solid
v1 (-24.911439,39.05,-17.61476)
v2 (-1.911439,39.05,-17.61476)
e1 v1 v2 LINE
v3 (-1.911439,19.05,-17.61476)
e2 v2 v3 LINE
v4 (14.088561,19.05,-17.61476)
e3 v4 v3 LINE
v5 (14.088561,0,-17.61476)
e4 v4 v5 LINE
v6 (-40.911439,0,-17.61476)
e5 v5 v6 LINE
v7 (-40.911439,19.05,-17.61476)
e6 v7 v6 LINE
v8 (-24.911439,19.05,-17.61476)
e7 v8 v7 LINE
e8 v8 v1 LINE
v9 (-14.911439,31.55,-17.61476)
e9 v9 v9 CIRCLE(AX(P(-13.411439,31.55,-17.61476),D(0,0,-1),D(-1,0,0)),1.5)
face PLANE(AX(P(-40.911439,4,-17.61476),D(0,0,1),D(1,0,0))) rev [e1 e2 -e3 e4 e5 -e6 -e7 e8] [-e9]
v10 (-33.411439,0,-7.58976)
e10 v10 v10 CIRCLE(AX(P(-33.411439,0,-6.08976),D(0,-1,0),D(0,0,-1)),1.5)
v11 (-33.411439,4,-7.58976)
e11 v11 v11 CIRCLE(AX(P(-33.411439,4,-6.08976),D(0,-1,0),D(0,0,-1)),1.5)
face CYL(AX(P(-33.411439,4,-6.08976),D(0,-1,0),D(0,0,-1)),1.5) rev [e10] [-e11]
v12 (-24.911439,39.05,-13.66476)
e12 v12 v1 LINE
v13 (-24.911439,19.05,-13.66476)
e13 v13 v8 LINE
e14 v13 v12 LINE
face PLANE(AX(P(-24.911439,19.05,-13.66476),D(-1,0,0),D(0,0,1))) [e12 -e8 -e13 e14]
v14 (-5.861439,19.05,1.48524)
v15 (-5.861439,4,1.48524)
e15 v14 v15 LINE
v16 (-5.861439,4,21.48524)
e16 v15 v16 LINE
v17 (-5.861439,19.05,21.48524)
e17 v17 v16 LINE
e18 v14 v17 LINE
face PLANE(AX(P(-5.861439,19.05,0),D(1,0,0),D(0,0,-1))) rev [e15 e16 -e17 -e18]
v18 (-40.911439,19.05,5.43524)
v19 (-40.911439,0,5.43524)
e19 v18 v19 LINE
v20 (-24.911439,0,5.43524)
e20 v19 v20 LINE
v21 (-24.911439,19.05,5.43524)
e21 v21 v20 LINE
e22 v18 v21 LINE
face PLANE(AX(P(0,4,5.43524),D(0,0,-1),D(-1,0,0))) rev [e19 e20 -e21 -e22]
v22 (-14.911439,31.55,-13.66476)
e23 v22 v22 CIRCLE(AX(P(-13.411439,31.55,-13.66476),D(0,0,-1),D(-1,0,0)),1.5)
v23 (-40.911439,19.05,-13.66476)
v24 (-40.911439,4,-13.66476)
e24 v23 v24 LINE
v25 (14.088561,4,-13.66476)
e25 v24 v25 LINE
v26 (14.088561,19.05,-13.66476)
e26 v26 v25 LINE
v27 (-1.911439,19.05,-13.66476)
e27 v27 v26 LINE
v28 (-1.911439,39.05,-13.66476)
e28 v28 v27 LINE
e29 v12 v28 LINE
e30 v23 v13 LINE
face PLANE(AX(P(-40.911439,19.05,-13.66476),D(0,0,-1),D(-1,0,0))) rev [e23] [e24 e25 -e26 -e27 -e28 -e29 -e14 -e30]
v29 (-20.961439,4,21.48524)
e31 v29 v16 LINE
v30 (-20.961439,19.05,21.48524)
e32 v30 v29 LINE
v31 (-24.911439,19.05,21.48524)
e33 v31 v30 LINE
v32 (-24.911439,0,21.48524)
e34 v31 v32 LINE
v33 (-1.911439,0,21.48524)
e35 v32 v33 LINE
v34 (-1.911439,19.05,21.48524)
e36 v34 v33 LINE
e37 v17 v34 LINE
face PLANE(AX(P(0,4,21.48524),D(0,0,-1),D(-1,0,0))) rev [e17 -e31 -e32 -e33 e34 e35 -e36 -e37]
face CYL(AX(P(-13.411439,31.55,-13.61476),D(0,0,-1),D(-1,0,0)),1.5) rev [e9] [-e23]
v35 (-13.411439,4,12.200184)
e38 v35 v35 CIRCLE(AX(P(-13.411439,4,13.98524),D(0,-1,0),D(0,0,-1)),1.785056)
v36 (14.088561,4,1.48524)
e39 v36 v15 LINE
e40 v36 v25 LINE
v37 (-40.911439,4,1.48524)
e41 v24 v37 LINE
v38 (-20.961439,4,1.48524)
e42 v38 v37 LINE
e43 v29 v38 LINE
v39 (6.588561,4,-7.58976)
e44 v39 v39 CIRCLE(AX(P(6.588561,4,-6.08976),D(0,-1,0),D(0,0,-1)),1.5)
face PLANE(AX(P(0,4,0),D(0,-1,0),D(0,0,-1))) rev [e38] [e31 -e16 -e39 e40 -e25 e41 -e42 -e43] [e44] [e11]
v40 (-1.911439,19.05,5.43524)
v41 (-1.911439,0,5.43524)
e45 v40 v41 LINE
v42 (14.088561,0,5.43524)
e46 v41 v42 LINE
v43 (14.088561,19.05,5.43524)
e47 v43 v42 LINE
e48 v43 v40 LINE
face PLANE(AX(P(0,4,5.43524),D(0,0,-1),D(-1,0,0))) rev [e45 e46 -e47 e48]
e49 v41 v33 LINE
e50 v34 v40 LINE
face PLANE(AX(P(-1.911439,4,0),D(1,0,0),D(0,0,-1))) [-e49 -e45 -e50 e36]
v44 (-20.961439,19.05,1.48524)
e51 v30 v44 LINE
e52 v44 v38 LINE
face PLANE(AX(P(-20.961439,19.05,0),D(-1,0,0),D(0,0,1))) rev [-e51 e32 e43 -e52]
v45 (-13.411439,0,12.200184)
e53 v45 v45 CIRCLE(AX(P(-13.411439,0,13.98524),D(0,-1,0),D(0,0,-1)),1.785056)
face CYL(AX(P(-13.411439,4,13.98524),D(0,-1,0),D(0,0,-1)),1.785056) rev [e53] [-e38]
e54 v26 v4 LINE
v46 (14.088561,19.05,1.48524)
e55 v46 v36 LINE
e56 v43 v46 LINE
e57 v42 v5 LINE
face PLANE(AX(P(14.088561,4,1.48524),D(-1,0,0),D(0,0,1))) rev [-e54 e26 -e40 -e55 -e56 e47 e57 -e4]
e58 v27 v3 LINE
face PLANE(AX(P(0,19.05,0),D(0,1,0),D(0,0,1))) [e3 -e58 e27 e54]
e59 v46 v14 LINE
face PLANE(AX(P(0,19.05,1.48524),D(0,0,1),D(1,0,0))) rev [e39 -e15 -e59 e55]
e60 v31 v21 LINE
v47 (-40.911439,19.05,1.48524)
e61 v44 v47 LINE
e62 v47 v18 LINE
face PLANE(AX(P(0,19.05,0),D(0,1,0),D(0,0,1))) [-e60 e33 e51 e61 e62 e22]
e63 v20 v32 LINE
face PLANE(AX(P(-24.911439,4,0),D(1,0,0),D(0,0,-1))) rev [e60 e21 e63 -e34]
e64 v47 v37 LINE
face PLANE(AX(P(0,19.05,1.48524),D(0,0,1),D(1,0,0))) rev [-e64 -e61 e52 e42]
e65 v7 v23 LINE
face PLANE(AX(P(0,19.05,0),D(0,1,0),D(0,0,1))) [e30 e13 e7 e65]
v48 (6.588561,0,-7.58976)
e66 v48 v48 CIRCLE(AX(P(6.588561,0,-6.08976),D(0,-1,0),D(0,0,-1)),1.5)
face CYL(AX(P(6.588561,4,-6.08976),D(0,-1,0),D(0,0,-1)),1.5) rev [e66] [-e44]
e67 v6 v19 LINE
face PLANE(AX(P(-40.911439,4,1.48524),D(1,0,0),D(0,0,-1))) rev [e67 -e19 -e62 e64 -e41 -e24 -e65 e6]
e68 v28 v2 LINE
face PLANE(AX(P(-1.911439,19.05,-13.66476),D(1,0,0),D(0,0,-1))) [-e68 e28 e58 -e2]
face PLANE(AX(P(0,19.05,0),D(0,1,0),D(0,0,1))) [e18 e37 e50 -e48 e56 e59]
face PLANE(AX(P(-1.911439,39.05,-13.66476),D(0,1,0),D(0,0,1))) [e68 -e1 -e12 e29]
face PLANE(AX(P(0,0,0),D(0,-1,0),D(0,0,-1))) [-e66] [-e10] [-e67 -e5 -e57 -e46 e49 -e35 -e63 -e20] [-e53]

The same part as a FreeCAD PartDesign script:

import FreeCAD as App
import Part
import Sketcher

V = App.Vector


def add_polygon(sketch, points):
    """Adds a closed chain of lines whose ends are joined by coincident constraints."""
    first, n = sketch.GeometryCount, len(points)
    for a, b in zip(points, points[1:] + points[:1]):
        sketch.addGeometry(Part.LineSegment(App.Vector(*a, 0), App.Vector(*b, 0)), False)
    for i in range(n):
        sketch.addConstraint(Sketcher.Constraint("Coincident", first + i, 2, first + (i + 1) % n, 1))

doc = App.newDocument("Part")
body = doc.addObject("PartDesign::Body", "Body")

sketch1 = doc.addObject("Sketcher::SketchObject", "Sketch")
body.addObject(sketch1)
sketch1.AttachmentSupport = (doc.XZ_Plane, [""])
sketch1.MapMode = "FlatFace"
add_polygon(sketch1, [(-41, -18), (-41, 1), (14, 1), (14, -18)])
sketch1.addConstraint([
    Sketcher.Constraint("Vertical", 0),
    Sketcher.Constraint("Horizontal", 1),
    Sketcher.Constraint("Vertical", 2),
    Sketcher.Constraint("Horizontal", 3),
    Sketcher.Constraint("DistanceX", 1, 1, 1, 2, 55.0),
    Sketcher.Constraint("DistanceY", 0, 1, 0, 2, 19.1),
    Sketcher.Constraint("DistanceX", 0, 2, -1, 1, 40.911439),
    Sketcher.Constraint("DistanceY", -1, 1, 0, 2, 1.48524),
])
pad1 = doc.addObject("PartDesign::Pad", "Pad")
body.addObject(pad1)
pad1.Profile = sketch1
pad1.Length = 4
pad1.Reversed = True

sketch2 = doc.addObject("Sketcher::SketchObject", "Sketch001")
body.addObject(sketch2)
sketch2.AttachmentSupport = (doc.XZ_Plane, [""])
sketch2.MapMode = "FlatFace"
sketch2.AttachmentOffset = App.Placement(V(0, 0, -4), App.Rotation())
add_polygon(sketch2, [(-40.9, -17.6), (-40.9, -13.7), (14.1, -13.7), (14.1, -17.6)])
sketch2.addConstraint([
    Sketcher.Constraint("Vertical", 0),
    Sketcher.Constraint("Horizontal", 1),
    Sketcher.Constraint("Vertical", 2),
    Sketcher.Constraint("Horizontal", 3),
    Sketcher.Constraint("DistanceX", 1, 1, 1, 2, 55.0),
    Sketcher.Constraint("DistanceY", 0, 1, 0, 2, 3.95),
    Sketcher.Constraint("DistanceX", 0, 2, -1, 1, 40.911439),
    Sketcher.Constraint("DistanceY", 0, 2, -1, 1, 13.66476),
])
pad2 = doc.addObject("PartDesign::Pad", "Pad001")
body.addObject(pad2)
pad2.Profile = sketch2
pad2.Length = 15.05
pad2.Reversed = True
body2 = doc.addObject("PartDesign::Body", "Body001")

sketch3 = doc.addObject("Sketcher::SketchObject", "Sketch002")
body2.addObject(sketch3)
sketch3.AttachmentSupport = (doc.getObject("XZ_Plane001"), [""])
sketch3.MapMode = "FlatFace"
add_polygon(sketch3, [(-40.9, 5.4), (-40.9, 1.5), (14.1, 1.5), (14.1, 5.4), (-1.9, 5.4), (-1.9, 21.5), (-24.9, 21.5), (-24.9, 5.4)])
sketch3.addConstraint([
    Sketcher.Constraint("Vertical", 0),
    Sketcher.Constraint("Horizontal", 1),
    Sketcher.Constraint("Vertical", 2),
    Sketcher.Constraint("Horizontal", 3),
    Sketcher.Constraint("Vertical", 4),
    Sketcher.Constraint("Horizontal", 5),
    Sketcher.Constraint("Vertical", 6),
    Sketcher.Constraint("Horizontal", 7),
    Sketcher.Constraint("Horizontal", 3, 2, 6, 2),
    Sketcher.Constraint("Equal", 3, 7),
    Sketcher.Constraint("DistanceX", 1, 1, 1, 2, 55.0),
    Sketcher.Constraint("DistanceX", 3, 2, 3, 1, 16.0),
    Sketcher.Constraint("DistanceY", 1, 2, 4, 2, 20.0),
    Sketcher.Constraint("DistanceY", 0, 2, 0, 1, 3.95),
    Sketcher.Constraint("DistanceX", 0, 2, -1, 1, 40.911439),
    Sketcher.Constraint("DistanceY", -1, 1, 0, 2, 1.48524),
])
pad3 = doc.addObject("PartDesign::Pad", "Pad002")
body2.addObject(pad3)
pad3.Profile = sketch3
pad3.Length = 4
pad3.Reversed = True
doc.recompute()

boolean = doc.addObject("PartDesign::Boolean", "Boolean")
body.addObject(boolean)
boolean.Type = "Fuse"
boolean.addObjects([body2])

sketch4 = doc.addObject("Sketcher::SketchObject", "Sketch003")
body.addObject(sketch4)
sketch4.AttachmentSupport = (doc.XZ_Plane, [""])
sketch4.MapMode = "FlatFace"
sketch4.AttachmentOffset = App.Placement(V(0, 0, -4), App.Rotation())
add_polygon(sketch4, [(-5.9, 21.5), (-1.9, 21.5), (-1.9, 5.4), (14.1, 5.4), (14.1, 1.5), (-5.9, 1.5)])
add_polygon(sketch4, [(-21, 21.5), (-21, 1.5), (-40.9, 1.5), (-40.9, 5.4), (-24.9, 5.4), (-24.9, 21.5)])
sketch4.addConstraint([
    Sketcher.Constraint("Horizontal", 0),
    Sketcher.Constraint("Vertical", 1),
    Sketcher.Constraint("Horizontal", 2),
    Sketcher.Constraint("Vertical", 3),
    Sketcher.Constraint("Horizontal", 4),
    Sketcher.Constraint("Vertical", 5),
    Sketcher.Constraint("Vertical", 6),
    Sketcher.Constraint("Horizontal", 7),
    Sketcher.Constraint("Vertical", 8),
    Sketcher.Constraint("Horizontal", 9),
    Sketcher.Constraint("Vertical", 10),
    Sketcher.Constraint("Horizontal", 11),
    Sketcher.Constraint("Horizontal", 4, 2, 6, 2),
    Sketcher.Constraint("Horizontal", 2, 2, 8, 2),
    Sketcher.Constraint("Horizontal", 5, 2, 10, 2),
    Sketcher.Constraint("Equal", 4, 7),
    Sketcher.Constraint("Equal", 2, 9),
    Sketcher.Constraint("Equal", 11, 3),
    Sketcher.Constraint("DistanceX", 2, 1, 2, 2, 16.0),
    Sketcher.Constraint("DistanceY", 5, 1, 5, 2, 20.0),
    Sketcher.Constraint("DistanceX", 7, 2, 1, 2, 39.0),
    Sketcher.Constraint("DistanceX", 0, 1, 0, 2, 3.95),
    Sketcher.Constraint("DistanceX", 0, 2, -1, 1, 1.911439),
    Sketcher.Constraint("DistanceY", -1, 1, 0, 2, 21.48524),
])
pad4 = doc.addObject("PartDesign::Pad", "Pad003")
body.addObject(pad4)
pad4.Profile = sketch4
pad4.Length = 15.05
pad4.Reversed = True

sketch5 = doc.addObject("Sketcher::SketchObject", "Sketch004")
body.addObject(sketch5)
sketch5.AttachmentSupport = (doc.XY_Plane, [""])
sketch5.MapMode = "FlatFace"
sketch5.AttachmentOffset = App.Placement(V(0, 0, -17.61476), App.Rotation())
add_polygon(sketch5, [(-2, 39), (-2, 19), (-25, 19), (-25, 39)])
sketch5.addConstraint([
    Sketcher.Constraint("Vertical", 0),
    Sketcher.Constraint("Horizontal", 1),
    Sketcher.Constraint("Vertical", 2),
    Sketcher.Constraint("Horizontal", 3),
    Sketcher.Constraint("DistanceX", 1, 2, 1, 1, 23.0),
    Sketcher.Constraint("DistanceY", 0, 2, 0, 1, 20.0),
    Sketcher.Constraint("DistanceY", -1, 1, 0, 2, 19.05),
    Sketcher.Constraint("DistanceX", 0, 2, -1, 1, 1.911439),
])
pad5 = doc.addObject("PartDesign::Pad", "Pad004")
body.addObject(pad5)
pad5.Profile = sketch5
pad5.Length = 3.95

sketch6 = doc.addObject("Sketcher::SketchObject", "Sketch005")
body.addObject(sketch6)
sketch6.AttachmentSupport = (doc.XY_Plane, [""])
sketch6.MapMode = "FlatFace"
sketch6.AttachmentOffset = App.Placement(V(0, 0, -17.61476), App.Rotation())
sketch6.addGeometry(Part.Circle(V(-13.4, 31.6, 0), V(0, 0, 1), 1.5), False)
sketch6.addConstraint([
    Sketcher.Constraint("Diameter", 0, 3.0),
    Sketcher.Constraint("DistanceY", -1, 1, 0, 3, 31.55),
    Sketcher.Constraint("DistanceX", 0, 3, -1, 1, 13.411439),
])
pocket1 = doc.addObject("PartDesign::Pocket", "Pocket")
body.addObject(pocket1)
pocket1.Profile = sketch6
pocket1.Length = 4
pocket1.Reversed = True

sketch7 = doc.addObject("Sketcher::SketchObject", "Sketch006")
body.addObject(sketch7)
sketch7.AttachmentSupport = (doc.XZ_Plane, [""])
sketch7.MapMode = "FlatFace"
sketch7.addGeometry([
    Part.Circle(V(6.6, -6.1, 0), V(0, 0, 1), 1.5),
    Part.Circle(V(-33.4, -6.1, 0), V(0, 0, 1), 1.5),
    Part.Circle(V(-13.4, 14, 0), V(0, 0, 1), 1.8),
], False)
sketch7.addConstraint([
    Sketcher.Constraint("Equal", 0, 1),
    Sketcher.Constraint("Horizontal", 0, 3, 1, 3),
    Sketcher.Constraint("Diameter", 0, 3.0),
    Sketcher.Constraint("DistanceX", 1, 3, 0, 3, 40.0),
    Sketcher.Constraint("DistanceX", 1, 3, 2, 3, 20.0),
    Sketcher.Constraint("Diameter", 2, 3.570113),
    Sketcher.Constraint("DistanceY", 1, 3, 2, 3, 20.075),
    Sketcher.Constraint("DistanceX", -1, 1, 0, 3, 6.588561),
    Sketcher.Constraint("DistanceY", 0, 3, -1, 1, 6.08976),
])
pocket2 = doc.addObject("PartDesign::Pocket", "Pocket001")
body.addObject(pocket2)
pocket2.Profile = sketch7
pocket2.Length = 4

doc.recompute()
